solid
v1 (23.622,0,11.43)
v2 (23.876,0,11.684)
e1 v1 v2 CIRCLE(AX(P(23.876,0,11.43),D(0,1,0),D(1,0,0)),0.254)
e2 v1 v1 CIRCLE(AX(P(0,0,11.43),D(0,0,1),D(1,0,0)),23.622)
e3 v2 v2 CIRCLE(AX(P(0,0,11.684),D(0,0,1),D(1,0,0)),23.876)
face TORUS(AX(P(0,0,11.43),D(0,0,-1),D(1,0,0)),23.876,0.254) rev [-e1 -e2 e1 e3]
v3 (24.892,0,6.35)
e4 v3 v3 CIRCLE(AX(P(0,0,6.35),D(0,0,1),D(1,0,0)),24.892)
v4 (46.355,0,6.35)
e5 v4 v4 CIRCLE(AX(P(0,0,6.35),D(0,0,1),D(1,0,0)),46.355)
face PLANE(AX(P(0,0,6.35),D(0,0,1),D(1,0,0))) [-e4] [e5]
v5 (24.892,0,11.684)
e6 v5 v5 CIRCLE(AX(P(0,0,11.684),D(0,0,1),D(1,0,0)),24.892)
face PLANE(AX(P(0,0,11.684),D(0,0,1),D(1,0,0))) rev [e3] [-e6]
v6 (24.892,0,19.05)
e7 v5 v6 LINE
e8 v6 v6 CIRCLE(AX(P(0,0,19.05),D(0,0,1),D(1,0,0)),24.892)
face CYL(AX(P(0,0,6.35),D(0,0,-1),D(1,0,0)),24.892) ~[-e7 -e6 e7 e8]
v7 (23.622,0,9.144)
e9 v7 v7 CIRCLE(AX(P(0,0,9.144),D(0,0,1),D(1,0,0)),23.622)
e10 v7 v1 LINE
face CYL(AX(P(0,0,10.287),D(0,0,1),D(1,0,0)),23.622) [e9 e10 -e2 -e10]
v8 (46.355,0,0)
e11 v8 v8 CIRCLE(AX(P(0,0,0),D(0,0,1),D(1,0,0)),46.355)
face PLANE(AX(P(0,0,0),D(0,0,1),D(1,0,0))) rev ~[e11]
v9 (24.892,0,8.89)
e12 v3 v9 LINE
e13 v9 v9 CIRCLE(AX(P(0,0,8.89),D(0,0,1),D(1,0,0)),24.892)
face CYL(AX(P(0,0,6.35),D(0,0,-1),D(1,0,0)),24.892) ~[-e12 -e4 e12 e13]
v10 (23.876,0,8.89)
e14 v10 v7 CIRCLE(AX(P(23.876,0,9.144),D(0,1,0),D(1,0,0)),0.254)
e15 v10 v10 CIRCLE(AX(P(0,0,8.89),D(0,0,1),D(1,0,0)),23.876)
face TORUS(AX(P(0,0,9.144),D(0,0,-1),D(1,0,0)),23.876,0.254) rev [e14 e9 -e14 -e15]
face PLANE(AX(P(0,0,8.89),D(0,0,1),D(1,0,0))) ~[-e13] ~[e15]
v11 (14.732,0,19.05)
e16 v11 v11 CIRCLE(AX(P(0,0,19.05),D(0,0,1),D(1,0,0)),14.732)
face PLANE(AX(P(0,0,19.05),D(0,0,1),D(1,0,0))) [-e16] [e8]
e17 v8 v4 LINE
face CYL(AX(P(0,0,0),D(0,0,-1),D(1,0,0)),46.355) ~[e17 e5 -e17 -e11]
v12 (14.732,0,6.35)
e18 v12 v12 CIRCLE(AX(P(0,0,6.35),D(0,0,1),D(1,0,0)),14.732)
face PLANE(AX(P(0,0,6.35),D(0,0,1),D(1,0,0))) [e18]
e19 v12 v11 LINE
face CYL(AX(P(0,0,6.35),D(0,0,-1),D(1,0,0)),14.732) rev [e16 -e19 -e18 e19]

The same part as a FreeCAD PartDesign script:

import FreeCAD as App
import Part
import Sketcher
from FreeCAD import Vector
Q = App.Units.Quantity


def edges_at(feature, points):
    """Names of the edges that pass closest to the given points."""
    edges = feature.Shape.Edges
    near = lambda p: min(range(len(edges)), key=lambda i: edges[i].distToShape(Part.Vertex(*p))[0])
    return sorted({f"Edge{near(p) + 1}" for p in points})


def add_polygon(sketch, points):
    """Adds a closed chain of lines whose ends are joined by coincident constraints."""
    first, n = sketch.GeometryCount, len(points)
    for a, b in zip(points, points[1:] + points[:1]):
        sketch.addGeometry(Part.LineSegment(App.Vector(*a, 0), App.Vector(*b, 0)), False)
    for i in range(n):
        sketch.addConstraint(Sketcher.Constraint("Coincident", first + i, 2, first + (i + 1) % n, 1))

doc = App.newDocument("Part")
body = doc.addObject("PartDesign::Body", "Body")

# Sketch on XY plane
sketch1 = body.newObject("Sketcher::SketchObject", "Sketch")
sketch1.AttachmentSupport = (doc.getObject("XY_Plane"), [""])
sketch1.MapMode = "FlatFace"
sketch1.addGeometry(Part.Circle(Vector(0, 0, 0), Vector(0, 0, 1), 46), False)
sketch1.addConstraint(Sketcher.Constraint("Coincident", 0, 3, -1, 1))
sketch1.addConstraint(Sketcher.Constraint("Diameter", 0, Q("3.65 in")))
pad1 = body.newObject("PartDesign::Pad", "Pad")
pad1.Profile = sketch1
pad1.Length = Q("0.25 in")

# Sketch on XY plane
sketch2 = body.newObject("Sketcher::SketchObject", "Sketch001")
sketch2.AttachmentSupport = (doc.getObject("XY_Plane"), [""])
sketch2.MapMode = "FlatFace"
sketch2.AttachmentOffset = App.Placement(Vector(0, 0, 0.25 * 25.4), App.Rotation())
sketch2.addGeometry(Part.Circle(Vector(0, 0, 0), Vector(0, 0, 1), 25), False)
sketch2.addGeometry(Part.Circle(Vector(0, 0, 0), Vector(0, 0, 1), 15), False)
sketch2.addConstraint(Sketcher.Constraint("Coincident", 0, 3, -1, 1))
sketch2.addConstraint(Sketcher.Constraint("Coincident", 1, 3, -1, 1))
sketch2.addConstraint(Sketcher.Constraint("Diameter", 0, Q("1.96 in")))
sketch2.addConstraint(Sketcher.Constraint("Diameter", 1, Q("1.16 in")))
pad2 = body.newObject("PartDesign::Pad", "Pad001")
pad2.Profile = sketch2
pad2.Length = Q("0.5 in")

# Sketch on XZ plane
sketch3 = body.newObject("Sketcher::SketchObject", "Sketch002")
sketch3.AttachmentSupport = (doc.getObject("XZ_Plane"), [""])
sketch3.MapMode = "FlatFace"
add_polygon(sketch3, [(23.6, 11.7), (23.6, 8.9), (24.9, 8.9), (24.9, 11.7)])  # lines 0-3
sketch3.addConstraint(Sketcher.Constraint("Vertical", 0))
sketch3.addConstraint(Sketcher.Constraint("Horizontal", 1))
sketch3.addConstraint(Sketcher.Constraint("Vertical", 2))
sketch3.addConstraint(Sketcher.Constraint("Horizontal", 3))
sketch3.addConstraint(Sketcher.Constraint("DistanceX", 1, 1, 1, 2, Q("0.05 in")))
sketch3.addConstraint(Sketcher.Constraint("DistanceY", 0, 2, 0, 1, Q("0.11 in")))
sketch3.addConstraint(Sketcher.Constraint("DistanceX", -1, 1, 0, 2, Q("0.93 in")))
sketch3.addConstraint(Sketcher.Constraint("DistanceY", -1, 1, 0, 2, Q("0.35 in")))
groove = body.newObject("PartDesign::Groove", "Groove")
groove.Profile = sketch3
groove.ReferenceAxis = (sketch3, ["V_Axis"])
groove.Angle = 360
doc.recompute()

fillet = body.newObject("PartDesign::Fillet", "Fillet")
fillet.Base = (groove, edges_at(groove, [(-23.622, 0, 11.684), (-23.622, 0, 8.89)]))
fillet.Radius = Q("0.01 in")

doc.recompute()
